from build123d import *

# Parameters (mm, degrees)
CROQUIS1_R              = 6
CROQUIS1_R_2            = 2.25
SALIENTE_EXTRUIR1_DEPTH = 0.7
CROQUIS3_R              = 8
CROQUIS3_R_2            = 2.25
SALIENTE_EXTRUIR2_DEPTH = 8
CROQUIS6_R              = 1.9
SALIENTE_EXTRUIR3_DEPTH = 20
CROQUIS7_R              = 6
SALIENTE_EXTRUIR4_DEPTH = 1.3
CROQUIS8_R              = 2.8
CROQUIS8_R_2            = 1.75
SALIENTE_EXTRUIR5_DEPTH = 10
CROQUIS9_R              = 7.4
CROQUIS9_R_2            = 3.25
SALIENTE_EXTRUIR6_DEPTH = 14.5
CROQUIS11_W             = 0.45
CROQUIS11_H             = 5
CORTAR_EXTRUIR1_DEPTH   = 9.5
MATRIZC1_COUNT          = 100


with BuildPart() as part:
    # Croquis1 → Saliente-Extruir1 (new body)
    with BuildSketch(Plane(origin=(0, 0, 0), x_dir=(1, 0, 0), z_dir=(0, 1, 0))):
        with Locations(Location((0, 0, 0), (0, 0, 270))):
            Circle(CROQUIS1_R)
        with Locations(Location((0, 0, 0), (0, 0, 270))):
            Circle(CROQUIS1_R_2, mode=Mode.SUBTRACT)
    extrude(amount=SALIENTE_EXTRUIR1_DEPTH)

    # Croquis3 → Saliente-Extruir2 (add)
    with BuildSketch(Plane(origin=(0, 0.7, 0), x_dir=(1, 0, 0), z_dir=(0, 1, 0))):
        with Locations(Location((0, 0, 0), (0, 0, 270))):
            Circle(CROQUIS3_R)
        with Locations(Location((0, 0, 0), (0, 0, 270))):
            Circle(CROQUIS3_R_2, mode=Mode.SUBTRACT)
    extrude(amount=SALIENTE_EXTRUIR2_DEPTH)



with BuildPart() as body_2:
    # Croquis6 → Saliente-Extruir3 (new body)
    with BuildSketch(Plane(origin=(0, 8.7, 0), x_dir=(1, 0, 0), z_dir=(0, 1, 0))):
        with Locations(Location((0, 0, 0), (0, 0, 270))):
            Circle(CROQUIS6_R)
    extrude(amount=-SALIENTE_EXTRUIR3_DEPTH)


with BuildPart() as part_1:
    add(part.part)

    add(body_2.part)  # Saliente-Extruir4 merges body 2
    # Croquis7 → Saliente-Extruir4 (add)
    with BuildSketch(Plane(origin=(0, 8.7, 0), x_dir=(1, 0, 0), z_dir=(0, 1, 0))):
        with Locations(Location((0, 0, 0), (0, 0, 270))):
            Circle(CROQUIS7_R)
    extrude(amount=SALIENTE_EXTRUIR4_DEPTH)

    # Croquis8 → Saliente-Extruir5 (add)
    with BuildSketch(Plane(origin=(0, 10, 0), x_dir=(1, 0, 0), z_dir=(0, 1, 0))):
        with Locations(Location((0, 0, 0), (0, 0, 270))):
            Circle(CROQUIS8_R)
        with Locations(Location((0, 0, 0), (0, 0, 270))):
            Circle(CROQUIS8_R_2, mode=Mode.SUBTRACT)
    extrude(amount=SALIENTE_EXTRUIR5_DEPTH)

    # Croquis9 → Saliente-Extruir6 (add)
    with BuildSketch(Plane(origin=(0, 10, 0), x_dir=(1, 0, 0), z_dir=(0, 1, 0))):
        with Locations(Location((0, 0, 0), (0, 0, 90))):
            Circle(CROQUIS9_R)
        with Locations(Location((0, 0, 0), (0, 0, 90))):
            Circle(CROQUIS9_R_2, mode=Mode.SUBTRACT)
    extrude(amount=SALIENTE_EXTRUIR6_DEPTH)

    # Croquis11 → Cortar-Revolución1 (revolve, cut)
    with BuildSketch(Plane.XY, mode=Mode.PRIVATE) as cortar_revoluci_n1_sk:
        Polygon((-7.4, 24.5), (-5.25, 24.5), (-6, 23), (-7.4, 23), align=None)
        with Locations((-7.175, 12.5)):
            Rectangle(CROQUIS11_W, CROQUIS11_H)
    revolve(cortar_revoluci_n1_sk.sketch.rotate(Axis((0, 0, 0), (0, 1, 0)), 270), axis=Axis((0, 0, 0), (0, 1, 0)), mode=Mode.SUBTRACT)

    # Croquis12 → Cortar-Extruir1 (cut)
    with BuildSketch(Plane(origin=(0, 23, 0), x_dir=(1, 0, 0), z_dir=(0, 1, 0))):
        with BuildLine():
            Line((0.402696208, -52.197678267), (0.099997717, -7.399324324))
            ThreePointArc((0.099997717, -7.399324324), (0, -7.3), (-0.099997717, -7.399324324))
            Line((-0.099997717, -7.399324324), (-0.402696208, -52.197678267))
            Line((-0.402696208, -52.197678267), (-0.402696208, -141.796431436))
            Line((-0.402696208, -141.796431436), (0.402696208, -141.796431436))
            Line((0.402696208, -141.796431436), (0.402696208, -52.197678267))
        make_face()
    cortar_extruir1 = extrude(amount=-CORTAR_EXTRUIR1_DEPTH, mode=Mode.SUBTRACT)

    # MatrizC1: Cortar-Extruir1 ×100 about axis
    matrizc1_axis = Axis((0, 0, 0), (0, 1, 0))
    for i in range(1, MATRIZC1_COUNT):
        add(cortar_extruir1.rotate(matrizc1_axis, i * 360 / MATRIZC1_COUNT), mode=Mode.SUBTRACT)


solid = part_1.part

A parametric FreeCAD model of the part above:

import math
import FreeCAD as App
import Part
import Sketcher

doc = App.newDocument("Part")
params = doc.addObject("Spreadsheet::Sheet", "Params")
for row, (alias, value) in enumerate([
    ("sketch1_diameter", "12 mm"),
    ("sketch1_diameter2", "4.5 mm"),
    ("pad1_length", "0.7 mm"),
    ("sketch2_diameter", "16 mm"),
    ("sketch2_diameter2", "4.5 mm"),
    ("pad2_length", "8 mm"),
    ("sketch3_diameter", "3.8 mm"),
    ("pad3_length", "20 mm"),
    ("sketch4_diameter", "12 mm"),
    ("pad4_length", "1.3 mm"),
    ("sketch5_diameter", "5.6 mm"),
    ("sketch5_diameter2", "3.5 mm"),
    ("pad5_length", "10 mm"),
    ("sketch6_diameter", "14.8 mm"),
    ("sketch6_diameter2", "6.5 mm"),
    ("pad6_length", "14.5 mm"),
    ("sketch7_height", "5 mm"),
    ("sketch7_width", "1.4 mm"),
    ("sketch7_height2", "1.5 mm"),
    ("sketch7_width2", "2.15 mm"),
    ("sketch7_width3", "0.45 mm"),
    ("groove_angle", "360 deg"),
    ("sketch8_radius", "0.1 mm"),
    ("pocket1_length", "9.5 mm"),
], start=1):
    params.set(f"A{row}", alias)
    params.set(f"B{row}", "=" + value)
    params.setAlias(f"B{row}", alias)

body = doc.addObject("PartDesign::Body", "Body")

sketch1 = body.newObject("Sketcher::SketchObject", "Sketch")
sketch1.AttachmentSupport = (doc.getObject("XZ_Plane"), [""])
sketch1.MapMode = "FlatFace"
sketch1.addGeometry([
    Part.Circle(App.Vector(0, 0, 0), App.Vector(0, 0, 1), 6),
    Part.Circle(App.Vector(0, 0, 0), App.Vector(0, 0, 1), 2.25),
], False)
sketch1.addConstraint([
    Sketcher.Constraint("Coincident", 0, 3, -1, 1),
    Sketcher.Constraint("Coincident", 1, 3, -1, 1),
    Sketcher.Constraint("Diameter", 0, 12.0),
    Sketcher.Constraint("Diameter", 1, 4.5),
])
sketch1.setExpression("Constraints[2]", "Params.sketch1_diameter")
sketch1.setExpression("Constraints[3]", "Params.sketch1_diameter2")
pad1 = body.newObject("PartDesign::Pad", "Pad")
pad1.Profile = sketch1
pad1.setExpression("Length", "Params.pad1_length")
pad1.Reversed = True

sketch2 = body.newObject("Sketcher::SketchObject", "Sketch001")
sketch2.AttachmentSupport = (doc.getObject("XZ_Plane"), [""])
sketch2.MapMode = "FlatFace"
sketch2.AttachmentOffset = App.Placement(App.Vector(0, 0, -0.7), App.Rotation())
sketch2.addGeometry([
    Part.Circle(App.Vector(0, 0, 0), App.Vector(0, 0, 1), 8),
    Part.Circle(App.Vector(0, 0, 0), App.Vector(0, 0, 1), 2.25),
], False)
sketch2.addConstraint([
    Sketcher.Constraint("Coincident", 0, 3, -1, 1),
    Sketcher.Constraint("Coincident", 1, 3, -1, 1),
    Sketcher.Constraint("Diameter", 0, 16.0),
    Sketcher.Constraint("Diameter", 1, 4.5),
])
sketch2.setExpression("Constraints[2]", "Params.sketch2_diameter")
sketch2.setExpression("Constraints[3]", "Params.sketch2_diameter2")
pad2 = body.newObject("PartDesign::Pad", "Pad001")
pad2.Profile = sketch2
pad2.setExpression("Length", "Params.pad2_length")
pad2.Reversed = True
body2 = doc.addObject("PartDesign::Body", "Body001")

sketch3 = body2.newObject("Sketcher::SketchObject", "Sketch002")
sketch3.AttachmentSupport = (doc.getObject("XZ_Plane001"), [""])
sketch3.MapMode = "FlatFace"
sketch3.AttachmentOffset = App.Placement(App.Vector(0, 0, -8.7), App.Rotation())
sketch3.addGeometry(Part.Circle(App.Vector(0, 0, 0), App.Vector(0, 0, 1), 1.9), False)
sketch3.addConstraint([
    Sketcher.Constraint("Coincident", 0, 3, -1, 1),
    Sketcher.Constraint("Diameter", 0, 3.8),
])
sketch3.setExpression("Constraints[1]", "Params.sketch3_diameter")
pad3 = body2.newObject("PartDesign::Pad", "Pad002")
pad3.Profile = sketch3
pad3.setExpression("Length", "Params.pad3_length")
body.AllowCompound = True
doc.recompute()

boolean = body.newObject("PartDesign::Boolean", "Boolean")
boolean.Type = "Fuse"
boolean.addObjects([body2])

sketch4 = body.newObject("Sketcher::SketchObject", "Sketch003")
sketch4.AttachmentSupport = (doc.getObject("XZ_Plane"), [""])
sketch4.MapMode = "FlatFace"
sketch4.AttachmentOffset = App.Placement(App.Vector(0, 0, -8.7), App.Rotation())
sketch4.addGeometry(Part.Circle(App.Vector(0, 0, 0), App.Vector(0, 0, 1), 6), False)
sketch4.addConstraint([
    Sketcher.Constraint("Coincident", 0, 3, -1, 1),
    Sketcher.Constraint("Diameter", 0, 12.0),
])
sketch4.setExpression("Constraints[1]", "Params.sketch4_diameter")
pad4 = body.newObject("PartDesign::Pad", "Pad003")
pad4.Profile = sketch4
pad4.setExpression("Length", "Params.pad4_length")
pad4.Reversed = True

sketch5 = body.newObject("Sketcher::SketchObject", "Sketch004")
sketch5.AttachmentSupport = (doc.getObject("XZ_Plane"), [""])
sketch5.MapMode = "FlatFace"
sketch5.AttachmentOffset = App.Placement(App.Vector(0, 0, -10), App.Rotation())
sketch5.addGeometry([
    Part.Circle(App.Vector(0, 0, 0), App.Vector(0, 0, 1), 2.8),
    Part.Circle(App.Vector(0, 0, 0), App.Vector(0, 0, 1), 1.75),
], False)
sketch5.addConstraint([
    Sketcher.Constraint("Coincident", 0, 3, -1, 1),
    Sketcher.Constraint("Coincident", 1, 3, -1, 1),
    Sketcher.Constraint("Diameter", 0, 5.6),
    Sketcher.Constraint("Diameter", 1, 3.5),
])
sketch5.setExpression("Constraints[2]", "Params.sketch5_diameter")
sketch5.setExpression("Constraints[3]", "Params.sketch5_diameter2")
pad5 = body.newObject("PartDesign::Pad", "Pad004")
pad5.Profile = sketch5
pad5.setExpression("Length", "Params.pad5_length")
pad5.Reversed = True

sketch6 = body.newObject("Sketcher::SketchObject", "Sketch005")
sketch6.AttachmentSupport = (doc.getObject("XZ_Plane"), [""])
sketch6.MapMode = "FlatFace"
sketch6.AttachmentOffset = App.Placement(App.Vector(0, 0, -10), App.Rotation())
sketch6.addGeometry([
    Part.Circle(App.Vector(0, 0, 0), App.Vector(0, 0, 1), 7.4),
    Part.Circle(App.Vector(0, 0, 0), App.Vector(0, 0, 1), 3.25),
], False)
sketch6.addConstraint([
    Sketcher.Constraint("Coincident", 0, 3, -1, 1),
    Sketcher.Constraint("Coincident", 1, 3, -1, 1),
    Sketcher.Constraint("Diameter", 0, 14.8),
    Sketcher.Constraint("Diameter", 1, 6.5),
])
sketch6.setExpression("Constraints[2]", "Params.sketch6_diameter")
sketch6.setExpression("Constraints[3]", "Params.sketch6_diameter2")
pad6 = body.newObject("PartDesign::Pad", "Pad005")
pad6.Profile = sketch6
pad6.setExpression("Length", "Params.pad6_length")
pad6.Reversed = True

sketch7 = body.newObject("Sketcher::SketchObject", "Sketch006")
sketch7.AttachmentSupport = (doc.getObject("XY_Plane"), [""])
sketch7.MapMode = "FlatFace"
sketch7.addGeometry([
    Part.LineSegment(App.Vector(-5.25, 24.5, 0), App.Vector(-7.4, 24.5, 0)),
    Part.LineSegment(App.Vector(-7.4, 24.5, 0), App.Vector(-7.4, 23, 0)),
    Part.LineSegment(App.Vector(-7.4, 23, 0), App.Vector(-6, 23, 0)),
    Part.LineSegment(App.Vector(-6, 23, 0), App.Vector(-5.25, 24.5, 0)),
    Part.LineSegment(App.Vector(-7.4, 15, 0), App.Vector(-7.4, 10, 0)),
    Part.LineSegment(App.Vector(-7.4, 10, 0), App.Vector(-6.95, 10, 0)),
    Part.LineSegment(App.Vector(-6.95, 10, 0), App.Vector(-6.95, 15, 0)),
    Part.LineSegment(App.Vector(-6.95, 15, 0), App.Vector(-7.4, 15, 0)),
], False)
sketch7.addConstraint([
    Sketcher.Constraint("Coincident", 0, 2, 1, 1),
    Sketcher.Constraint("Coincident", 1, 2, 2, 1),
    Sketcher.Constraint("Coincident", 2, 2, 3, 1),
    Sketcher.Constraint("Coincident", 3, 2, 0, 1),
    Sketcher.Constraint("Coincident", 4, 2, 5, 1),
    Sketcher.Constraint("Coincident", 5, 2, 6, 1),
    Sketcher.Constraint("Coincident", 6, 2, 7, 1),
    Sketcher.Constraint("Coincident", 7, 2, 4, 1),
    Sketcher.Constraint("Horizontal", 0),
    Sketcher.Constraint("Vertical", 1),
    Sketcher.Constraint("Horizontal", 2),
    Sketcher.Constraint("Vertical", 4),
    Sketcher.Constraint("Horizontal", 5),
    Sketcher.Constraint("Vertical", 6),
    Sketcher.Constraint("Horizontal", 7),
    Sketcher.Constraint("Vertical", 1, 2, 4, 2),
    Sketcher.Constraint("DistanceY", 4, 2, 4, 1, 5.0),
    Sketcher.Constraint("DistanceX", 2, 1, 2, 2, 1.4),
    Sketcher.Constraint("DistanceY", 1, 2, 1, 1, 1.5),
    Sketcher.Constraint("DistanceY", -1, 1, 1, 2, 23.0),
    Sketcher.Constraint("DistanceX", 2, 2, -1, 1, 6.0),
    Sketcher.Constraint("DistanceY", -1, 1, 4, 2, 10.0),
    Sketcher.Constraint("DistanceX", 0, 2, 0, 1, 2.15),
    Sketcher.Constraint("DistanceX", 5, 1, 5, 2, 0.45),
])
sketch7.setExpression("Constraints[16]", "Params.sketch7_height")
sketch7.setExpression("Constraints[17]", "Params.sketch7_width")
sketch7.setExpression("Constraints[18]", "Params.sketch7_height2")
sketch7.setExpression("Constraints[22]", "Params.sketch7_width2")
sketch7.setExpression("Constraints[23]", "Params.sketch7_width3")
groove = body.newObject("PartDesign::Groove", "Groove")
groove.Profile = sketch7
groove.ReferenceAxis = (sketch7, ["V_Axis"])
groove.setExpression("Angle", "Params.groove_angle")

sketch8 = body.newObject("Sketcher::SketchObject", "Sketch007")
sketch8.AttachmentSupport = (doc.getObject("XZ_Plane"), [""])
sketch8.MapMode = "FlatFace"
sketch8.AttachmentOffset = App.Placement(App.Vector(0, 0, -23), App.Rotation())
sketch8.addGeometry([
    Part.LineSegment(App.Vector(0.402696, 52.197678, 0), App.Vector(0.099998, 7.399324, 0)),
    Part.ArcOfCircle(Part.Circle(App.Vector(0, 7.4, 0), App.Vector(0, 0, 1), 0.1), math.radians(-179.612863), math.radians(-0.387137)),
    Part.LineSegment(App.Vector(-0.099998, 7.399324, 0), App.Vector(-0.402696, 52.197678, 0)),
    Part.LineSegment(App.Vector(-0.402696, 52.197678, 0), App.Vector(-0.402696, 141.796431, 0)),
    Part.LineSegment(App.Vector(-0.402696, 141.796431, 0), App.Vector(0.402696, 141.796431, 0)),
    Part.LineSegment(App.Vector(0.402696, 141.796431, 0), App.Vector(0.402696, 52.197678, 0)),
], False)
sketch8.addConstraint([
    Sketcher.Constraint("Tangent", 0, 2, 1, 2),
    Sketcher.Constraint("Tangent", 1, 1, 2, 1),
    Sketcher.Constraint("Coincident", 2, 2, 3, 1),
    Sketcher.Constraint("Coincident", 3, 2, 4, 1),
    Sketcher.Constraint("Coincident", 4, 2, 5, 1),
    Sketcher.Constraint("Coincident", 5, 2, 0, 1),
    Sketcher.Constraint("Vertical", 3),
    Sketcher.Constraint("Horizontal", 4),
    Sketcher.Constraint("Vertical", 5),
    Sketcher.Constraint("Symmetric", 2, 2, 5, 2, -2),
    Sketcher.Constraint("PointOnObject", 1, 3, -2),
    Sketcher.Constraint("Radius", 1, 0.1),
    Sketcher.Constraint("DistanceY", -1, 1, 1, 3, 7.4),
    Sketcher.Constraint("DistanceX", 2, 2, 1, 1, 0.302698),
    Sketcher.Constraint("DistanceY", 3, 1, 3, 2, 89.598753),
    Sketcher.Constraint("DistanceY", -1, 1, 2, 2, 52.197678),
])
sketch8.setExpression("Constraints[11]", "Params.sketch8_radius")
pocket1 = body.newObject("PartDesign::Pocket", "Pocket")
pocket1.Profile = sketch8
pocket1.setExpression("Length", "Params.pocket1_length")
pocket1.Reversed = True
doc.recompute()

polarpattern = body.newObject("PartDesign::PolarPattern", "PolarPattern")
polarpattern.Originals = [pocket1]
polarpattern.Axis = (doc.getObject("Y_Axis"), [""])
polarpattern.Angle = 360
polarpattern.Occurrences = 100
body.Tip = polarpattern

doc.recompute()
